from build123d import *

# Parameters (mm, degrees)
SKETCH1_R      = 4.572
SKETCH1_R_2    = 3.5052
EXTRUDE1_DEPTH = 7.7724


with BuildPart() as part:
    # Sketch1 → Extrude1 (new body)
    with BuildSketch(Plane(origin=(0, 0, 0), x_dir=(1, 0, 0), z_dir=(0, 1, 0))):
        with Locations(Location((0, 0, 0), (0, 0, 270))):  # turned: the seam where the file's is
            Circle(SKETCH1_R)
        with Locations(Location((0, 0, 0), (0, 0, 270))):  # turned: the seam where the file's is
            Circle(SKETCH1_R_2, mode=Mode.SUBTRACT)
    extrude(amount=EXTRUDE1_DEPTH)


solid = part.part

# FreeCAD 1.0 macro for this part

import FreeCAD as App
import Part
import Sketcher
from FreeCAD import Vector
Q = App.Units.Quantity

doc = App.newDocument("Part")
body = doc.addObject("PartDesign::Body", "Body")

# Sketch on XZ plane
sketch1 = body.newObject("Sketcher::SketchObject", "Sketch")
sketch1.AttachmentSupport = (doc.getObject("XZ_Plane"), [""])
sketch1.MapMode = "FlatFace"
sketch1.addGeometry(Part.Circle(Vector(0, 0, 0), Vector(0, 0, 1), 4.6), False)
sketch1.addGeometry(Part.Circle(Vector(0, 0, 0), Vector(0, 0, 1), 3.5), False)
sketch1.addConstraint(Sketcher.Constraint("Coincident", 0, 3, -1, 1))
sketch1.addConstraint(Sketcher.Constraint("Coincident", 1, 3, -1, 1))
sketch1.addConstraint(Sketcher.Constraint("Diameter", 0, Q("0.36 in")))
sketch1.addConstraint(Sketcher.Constraint("Diameter", 1, Q("0.276 in")))
pad1 = body.newObject("PartDesign::Pad", "Pad")
pad1.Profile = sketch1
pad1.Length = Q("0.306 in")
pad1.Reversed = True

doc.recompute()
